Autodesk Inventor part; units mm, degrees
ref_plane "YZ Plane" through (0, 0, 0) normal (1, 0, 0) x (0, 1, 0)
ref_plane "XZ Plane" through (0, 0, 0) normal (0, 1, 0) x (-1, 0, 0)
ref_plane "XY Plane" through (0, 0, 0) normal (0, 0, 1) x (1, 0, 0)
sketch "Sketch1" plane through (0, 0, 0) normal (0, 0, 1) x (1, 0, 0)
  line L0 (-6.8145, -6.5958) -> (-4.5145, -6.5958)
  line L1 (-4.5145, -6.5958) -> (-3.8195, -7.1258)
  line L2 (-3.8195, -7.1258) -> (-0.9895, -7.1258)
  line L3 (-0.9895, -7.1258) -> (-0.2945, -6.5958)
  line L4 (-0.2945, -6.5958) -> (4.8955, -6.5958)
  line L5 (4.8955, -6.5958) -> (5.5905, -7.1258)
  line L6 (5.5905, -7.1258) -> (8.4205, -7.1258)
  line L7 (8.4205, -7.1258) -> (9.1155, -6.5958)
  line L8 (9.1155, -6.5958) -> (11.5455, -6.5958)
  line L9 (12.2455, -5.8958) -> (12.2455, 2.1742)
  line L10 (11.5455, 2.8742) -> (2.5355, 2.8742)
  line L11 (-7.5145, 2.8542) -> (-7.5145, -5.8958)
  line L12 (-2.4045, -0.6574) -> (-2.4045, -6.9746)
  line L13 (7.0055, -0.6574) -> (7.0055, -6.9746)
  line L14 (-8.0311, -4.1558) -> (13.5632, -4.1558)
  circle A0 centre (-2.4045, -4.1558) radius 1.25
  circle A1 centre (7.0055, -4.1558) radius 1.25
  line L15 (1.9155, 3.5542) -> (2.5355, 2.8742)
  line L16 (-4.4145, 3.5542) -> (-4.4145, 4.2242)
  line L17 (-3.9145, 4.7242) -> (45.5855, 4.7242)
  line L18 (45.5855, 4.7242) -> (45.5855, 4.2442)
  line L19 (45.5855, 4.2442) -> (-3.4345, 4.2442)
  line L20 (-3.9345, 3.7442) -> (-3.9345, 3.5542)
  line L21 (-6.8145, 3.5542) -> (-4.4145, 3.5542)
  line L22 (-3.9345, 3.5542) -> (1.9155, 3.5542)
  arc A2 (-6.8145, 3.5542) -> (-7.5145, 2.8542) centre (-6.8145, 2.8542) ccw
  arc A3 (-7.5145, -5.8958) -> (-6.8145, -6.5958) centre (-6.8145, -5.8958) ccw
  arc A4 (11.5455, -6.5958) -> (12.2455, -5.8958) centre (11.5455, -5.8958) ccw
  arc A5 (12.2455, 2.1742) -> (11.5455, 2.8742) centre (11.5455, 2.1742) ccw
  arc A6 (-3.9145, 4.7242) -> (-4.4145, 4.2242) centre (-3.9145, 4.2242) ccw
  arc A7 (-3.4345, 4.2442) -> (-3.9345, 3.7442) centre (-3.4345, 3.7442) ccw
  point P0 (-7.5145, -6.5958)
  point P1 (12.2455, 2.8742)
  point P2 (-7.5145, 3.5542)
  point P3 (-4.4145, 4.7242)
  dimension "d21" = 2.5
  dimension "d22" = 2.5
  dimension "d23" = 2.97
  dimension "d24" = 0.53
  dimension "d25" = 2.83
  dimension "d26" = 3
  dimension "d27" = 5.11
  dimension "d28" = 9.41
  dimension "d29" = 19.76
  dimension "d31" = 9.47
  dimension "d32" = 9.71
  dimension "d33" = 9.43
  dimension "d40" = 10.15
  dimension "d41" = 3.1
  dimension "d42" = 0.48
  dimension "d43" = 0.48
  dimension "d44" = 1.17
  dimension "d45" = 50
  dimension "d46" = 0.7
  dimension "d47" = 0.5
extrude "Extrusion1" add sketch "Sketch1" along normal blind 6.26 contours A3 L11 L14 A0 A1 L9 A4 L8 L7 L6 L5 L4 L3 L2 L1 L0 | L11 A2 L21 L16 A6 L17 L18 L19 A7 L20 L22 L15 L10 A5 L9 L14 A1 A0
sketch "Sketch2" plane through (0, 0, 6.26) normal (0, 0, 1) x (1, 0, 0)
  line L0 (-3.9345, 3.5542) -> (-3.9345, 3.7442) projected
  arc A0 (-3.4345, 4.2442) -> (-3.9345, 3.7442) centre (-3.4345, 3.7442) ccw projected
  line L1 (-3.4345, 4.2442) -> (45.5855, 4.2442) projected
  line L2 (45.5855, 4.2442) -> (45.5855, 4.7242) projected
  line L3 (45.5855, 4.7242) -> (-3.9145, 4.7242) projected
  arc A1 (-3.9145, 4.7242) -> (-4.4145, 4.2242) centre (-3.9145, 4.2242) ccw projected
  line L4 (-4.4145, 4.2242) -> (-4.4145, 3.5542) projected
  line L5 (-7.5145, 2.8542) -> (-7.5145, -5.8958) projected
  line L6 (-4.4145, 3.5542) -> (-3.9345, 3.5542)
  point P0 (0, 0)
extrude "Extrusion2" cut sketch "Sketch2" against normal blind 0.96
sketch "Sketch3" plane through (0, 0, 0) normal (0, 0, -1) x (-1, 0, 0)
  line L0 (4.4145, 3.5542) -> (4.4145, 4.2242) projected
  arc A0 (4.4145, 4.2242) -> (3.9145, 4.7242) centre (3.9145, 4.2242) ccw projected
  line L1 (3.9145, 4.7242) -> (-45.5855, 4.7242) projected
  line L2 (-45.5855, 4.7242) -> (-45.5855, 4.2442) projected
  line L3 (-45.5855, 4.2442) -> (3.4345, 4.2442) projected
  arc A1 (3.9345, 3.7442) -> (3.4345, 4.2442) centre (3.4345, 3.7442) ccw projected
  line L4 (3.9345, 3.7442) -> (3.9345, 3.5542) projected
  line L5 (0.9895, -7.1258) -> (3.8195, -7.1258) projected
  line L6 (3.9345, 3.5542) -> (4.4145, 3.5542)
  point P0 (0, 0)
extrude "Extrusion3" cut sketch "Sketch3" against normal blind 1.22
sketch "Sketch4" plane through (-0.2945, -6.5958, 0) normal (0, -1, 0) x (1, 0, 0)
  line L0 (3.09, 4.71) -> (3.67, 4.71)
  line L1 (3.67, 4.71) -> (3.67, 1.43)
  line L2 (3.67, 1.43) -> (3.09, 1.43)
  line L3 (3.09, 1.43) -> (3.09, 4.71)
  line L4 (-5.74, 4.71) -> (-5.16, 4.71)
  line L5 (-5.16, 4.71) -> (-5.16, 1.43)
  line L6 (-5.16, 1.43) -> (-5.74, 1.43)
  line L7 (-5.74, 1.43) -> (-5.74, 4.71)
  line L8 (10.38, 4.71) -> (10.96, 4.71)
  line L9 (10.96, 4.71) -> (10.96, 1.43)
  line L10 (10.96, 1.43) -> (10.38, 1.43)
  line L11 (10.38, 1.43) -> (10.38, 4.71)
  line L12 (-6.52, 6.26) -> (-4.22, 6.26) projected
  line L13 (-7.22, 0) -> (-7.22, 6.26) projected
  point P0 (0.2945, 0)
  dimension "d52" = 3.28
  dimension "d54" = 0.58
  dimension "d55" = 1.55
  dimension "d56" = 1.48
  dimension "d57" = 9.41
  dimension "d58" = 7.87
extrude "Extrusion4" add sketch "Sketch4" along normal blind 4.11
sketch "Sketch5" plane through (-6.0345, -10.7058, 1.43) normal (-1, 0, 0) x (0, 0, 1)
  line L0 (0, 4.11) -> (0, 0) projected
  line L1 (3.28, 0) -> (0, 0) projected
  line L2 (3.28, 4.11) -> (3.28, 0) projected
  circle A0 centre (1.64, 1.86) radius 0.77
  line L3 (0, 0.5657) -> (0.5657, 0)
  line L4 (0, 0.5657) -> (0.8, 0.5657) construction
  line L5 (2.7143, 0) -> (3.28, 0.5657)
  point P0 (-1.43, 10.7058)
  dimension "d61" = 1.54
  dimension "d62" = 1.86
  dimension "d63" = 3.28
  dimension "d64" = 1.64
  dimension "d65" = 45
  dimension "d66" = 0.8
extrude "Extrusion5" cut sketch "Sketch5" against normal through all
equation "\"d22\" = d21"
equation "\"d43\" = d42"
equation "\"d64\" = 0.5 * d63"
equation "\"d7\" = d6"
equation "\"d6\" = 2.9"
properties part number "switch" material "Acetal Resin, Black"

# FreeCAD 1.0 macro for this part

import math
import FreeCAD as App
import Part
import Sketcher
from FreeCAD import Vector

doc = App.newDocument("Part")
body = doc.addObject("PartDesign::Body", "Body")

sketch1 = body.newObject("Sketcher::SketchObject", "Sketch")
sketch1.AttachmentSupport = (doc.getObject("XY_Plane"), [""])
sketch1.MapMode = "FlatFace"
sketch1.addGeometry([
    Part.ArcOfCircle(Part.Circle(Vector(-6.81, -5.9, 0), Vector(0, 0, 1), 0.7), math.radians(180), math.radians(270)),
    Part.LineSegment(Vector(-6.81, -6.6, 0), Vector(-4.51, -6.6, 0)),
    Part.LineSegment(Vector(-4.51, -6.6, 0), Vector(-3.82, -7.13, 0)),
    Part.LineSegment(Vector(-3.82, -7.13, 0), Vector(-0.99, -7.13, 0)),
    Part.LineSegment(Vector(-0.99, -7.13, 0), Vector(-0.29, -6.6, 0)),
    Part.LineSegment(Vector(-0.29, -6.6, 0), Vector(4.9, -6.6, 0)),
    Part.LineSegment(Vector(4.9, -6.6, 0), Vector(5.59, -7.13, 0)),
    Part.LineSegment(Vector(5.59, -7.13, 0), Vector(8.42, -7.13, 0)),
    Part.LineSegment(Vector(8.42, -7.13, 0), Vector(9.12, -6.6, 0)),
    Part.LineSegment(Vector(9.12, -6.6, 0), Vector(11.55, -6.6, 0)),
    Part.ArcOfCircle(Part.Circle(Vector(11.55, -5.9, 0), Vector(0, 0, 1), 0.7), math.radians(-90), math.radians(0)),
    Part.LineSegment(Vector(12.25, -5.9, 0), Vector(12.25, 2.17, 0)),
    Part.ArcOfCircle(Part.Circle(Vector(11.55, 2.17, 0), Vector(0, 0, 1), 0.7), math.radians(0), math.radians(90)),
    Part.LineSegment(Vector(11.55, 2.87, 0), Vector(2.54, 2.87, 0)),
    Part.LineSegment(Vector(2.54, 2.87, 0), Vector(1.92, 3.55, 0)),
    Part.LineSegment(Vector(1.92, 3.55, 0), Vector(-3.93, 3.55, 0)),
    Part.LineSegment(Vector(-3.93, 3.55, 0), Vector(-3.93, 3.74, 0)),
    Part.ArcOfCircle(Part.Circle(Vector(-3.43, 3.74, 0), Vector(0, 0, 1), 0.5), math.radians(90), math.radians(180)),
    Part.LineSegment(Vector(-3.43, 4.24, 0), Vector(45.59, 4.24, 0)),
    Part.LineSegment(Vector(45.59, 4.24, 0), Vector(45.59, 4.72, 0)),
    Part.LineSegment(Vector(45.59, 4.72, 0), Vector(-3.91, 4.72, 0)),
    Part.ArcOfCircle(Part.Circle(Vector(-3.91, 4.22, 0), Vector(0, 0, 1), 0.5), math.radians(90), math.radians(180)),
    Part.LineSegment(Vector(-4.41, 4.22, 0), Vector(-4.41, 3.55, 0)),
    Part.LineSegment(Vector(-4.41, 3.55, 0), Vector(-6.81, 3.55, 0)),
    Part.ArcOfCircle(Part.Circle(Vector(-6.81, 2.85, 0), Vector(0, 0, 1), 0.7), math.radians(90), math.radians(180)),
    Part.LineSegment(Vector(-7.51, 2.85, 0), Vector(-7.51, -5.9, 0)),
    Part.Circle(Vector(-2.4, -4.16, 0), Vector(0, 0, 1), 1.25),
    Part.Circle(Vector(7.01, -4.16, 0), Vector(0, 0, 1), 1.25),
], False)
sketch1.addConstraint([
    Sketcher.Constraint("Tangent", 0, 2, 1, 1),
    Sketcher.Constraint("Coincident", 1, 2, 2, 1),
    Sketcher.Constraint("Coincident", 2, 2, 3, 1),
    Sketcher.Constraint("Coincident", 3, 2, 4, 1),
    Sketcher.Constraint("Coincident", 4, 2, 5, 1),
    Sketcher.Constraint("Coincident", 5, 2, 6, 1),
    Sketcher.Constraint("Coincident", 6, 2, 7, 1),
    Sketcher.Constraint("Coincident", 7, 2, 8, 1),
    Sketcher.Constraint("Coincident", 8, 2, 9, 1),
    Sketcher.Constraint("Tangent", 9, 2, 10, 1),
    Sketcher.Constraint("Tangent", 10, 2, 11, 1),
    Sketcher.Constraint("Tangent", 11, 2, 12, 1),
    Sketcher.Constraint("Tangent", 12, 2, 13, 1),
    Sketcher.Constraint("Coincident", 13, 2, 14, 1),
    Sketcher.Constraint("Coincident", 14, 2, 15, 1),
    Sketcher.Constraint("Coincident", 15, 2, 16, 1),
    Sketcher.Constraint("Tangent", 16, 2, 17, 2),
    Sketcher.Constraint("Tangent", 17, 1, 18, 1),
    Sketcher.Constraint("Coincident", 18, 2, 19, 1),
    Sketcher.Constraint("Coincident", 19, 2, 20, 1),
    Sketcher.Constraint("Tangent", 20, 2, 21, 1),
    Sketcher.Constraint("Tangent", 21, 2, 22, 1),
    Sketcher.Constraint("Coincident", 22, 2, 23, 1),
    Sketcher.Constraint("Tangent", 23, 2, 24, 1),
    Sketcher.Constraint("Tangent", 24, 2, 25, 1),
    Sketcher.Constraint("Tangent", 25, 2, 0, 1),
    Sketcher.Constraint("Horizontal", 1),
    Sketcher.Constraint("Horizontal", 3),
    Sketcher.Constraint("Horizontal", 5),
    Sketcher.Constraint("Horizontal", 7),
    Sketcher.Constraint("Horizontal", 9),
    Sketcher.Constraint("Vertical", 11),
    Sketcher.Constraint("Horizontal", 13),
    Sketcher.Constraint("Horizontal", 15),
    Sketcher.Constraint("Vertical", 16),
    Sketcher.Constraint("Horizontal", 18),
    Sketcher.Constraint("Vertical", 19),
    Sketcher.Constraint("Horizontal", 20),
    Sketcher.Constraint("Vertical", 22),
    Sketcher.Constraint("Horizontal", 23),
    Sketcher.Constraint("Vertical", 25),
    Sketcher.Constraint("Equal", 0, 10),
    Sketcher.Constraint("Equal", 10, 12),
    Sketcher.Constraint("Equal", 17, 21),
    Sketcher.Constraint("Equal", 12, 24),
    Sketcher.Constraint("Equal", 26, 27),
    Sketcher.Constraint("Parallel", 2, 6),
    Sketcher.Constraint("Parallel", 4, 8),
    Sketcher.Constraint("Horizontal", 0, 3, 10, 3),
    Sketcher.Constraint("Horizontal", 26, 3, 27, 3),
    Sketcher.Constraint("Horizontal", 1, 2, 4, 2),
    Sketcher.Constraint("Horizontal", 3, 2, 6, 2),
    Sketcher.Constraint("Horizontal", 15, 2, 22, 2),
    Sketcher.Constraint("Equal", 3, 7),
    Sketcher.Constraint("Equal", 2, 4),
    Sketcher.Constraint("Diameter", 26, 2.5),
    Sketcher.Constraint("Radius", 0, 0.7),
    Sketcher.Constraint("Radius", 17, 0.5),
    Sketcher.Constraint("DistanceX", 25, 2, 1, 2, 3.0),
    Sketcher.Constraint("DistanceX", 3, 1, 3, 2, 2.83),
    Sketcher.Constraint("DistanceY", 19, 1, 19, 2, 0.48),
    Sketcher.Constraint("DistanceX", 24, 2, 22, 2, 3.1),
    Sketcher.Constraint("DistanceX", 21, 3, 17, 3, 0.48),
    Sketcher.Constraint("DistanceX", 26, 3, 27, 3, 9.41),
    Sketcher.Constraint("DistanceY", 2, 2, 1, 2, 0.53),
    Sketcher.Constraint("DistanceY", 2, 2, 26, 3, 2.97),
    Sketcher.Constraint("DistanceY", 15, 2, 20, 2, 1.17),
    Sketcher.Constraint("DistanceX", 25, 2, 26, 3, 5.11),
    Sketcher.Constraint("DistanceX", 20, 2, 20, 1, 49.5),
    Sketcher.Constraint("DistanceX", 5, 1, 5, 2, 5.19),
    Sketcher.Constraint("DistanceX", 9, 1, 9, 2, 2.43),
    Sketcher.Constraint("DistanceX", 13, 2, 13, 1, 9.01),
    Sketcher.Constraint("DistanceX", 15, 2, 15, 1, 5.85),
    Sketcher.Constraint("DistanceY", 11, 1, 11, 2, 8.07),
    Sketcher.Constraint("DistanceY", 25, 2, 25, 1, 8.75),
    Sketcher.Constraint("DistanceX", 26, 3, 5, 2, 7.3),
    Sketcher.Constraint("DistanceX", 0, 3, -1, 1, 6.8145),
    Sketcher.Constraint("DistanceY", 0, 3, -1, 1, 5.8958),
])
pad1 = body.newObject("PartDesign::Pad", "Pad")
pad1.Profile = sketch1
pad1.Length = 6.26

sketch2 = body.newObject("Sketcher::SketchObject", "Sketch001")
sketch2.AttachmentSupport = (doc.getObject("XY_Plane"), [""])
sketch2.MapMode = "FlatFace"
sketch2.AttachmentOffset = App.Placement(Vector(0, 0, 6.26), App.Rotation())
sketch2.addGeometry([
    Part.LineSegment(Vector(-4.41, 3.55, 0), Vector(-3.93, 3.55, 0)),
    Part.LineSegment(Vector(-3.93, 3.55, 0), Vector(-3.93, 3.74, 0)),
    Part.ArcOfCircle(Part.Circle(Vector(-3.43, 3.74, 0), Vector(0, 0, 1), 0.5), math.radians(90), math.radians(180)),
    Part.LineSegment(Vector(-3.43, 4.24, 0), Vector(45.59, 4.24, 0)),
    Part.LineSegment(Vector(45.59, 4.24, 0), Vector(45.59, 4.72, 0)),
    Part.LineSegment(Vector(45.59, 4.72, 0), Vector(-3.91, 4.72, 0)),
    Part.ArcOfCircle(Part.Circle(Vector(-3.91, 4.22, 0), Vector(0, 0, 1), 0.5), math.radians(90), math.radians(180)),
    Part.LineSegment(Vector(-4.41, 4.22, 0), Vector(-4.41, 3.55, 0)),
], False)
sketch2.addConstraint([
    Sketcher.Constraint("Coincident", 0, 2, 1, 1),
    Sketcher.Constraint("Tangent", 1, 2, 2, 2),
    Sketcher.Constraint("Tangent", 2, 1, 3, 1),
    Sketcher.Constraint("Coincident", 3, 2, 4, 1),
    Sketcher.Constraint("Coincident", 4, 2, 5, 1),
    Sketcher.Constraint("Tangent", 5, 2, 6, 1),
    Sketcher.Constraint("Tangent", 6, 2, 7, 1),
    Sketcher.Constraint("Coincident", 7, 2, 0, 1),
    Sketcher.Constraint("Horizontal", 0),
    Sketcher.Constraint("Vertical", 1),
    Sketcher.Constraint("Horizontal", 3),
    Sketcher.Constraint("Vertical", 4),
    Sketcher.Constraint("Horizontal", 5),
    Sketcher.Constraint("Vertical", 7),
    Sketcher.Constraint("Equal", 2, 6),
    Sketcher.Constraint("Equal", 0, 4),
    Sketcher.Constraint("Radius", 2, 0.5),
    Sketcher.Constraint("DistanceX", 5, 2, 5, 1, 49.5),
    Sketcher.Constraint("DistanceX", 0, 1, 0, 2, 0.48),
    Sketcher.Constraint("DistanceY", 1, 1, 1, 2, 0.19),
    Sketcher.Constraint("DistanceX", 2, 3, -1, 1, 3.4345),
    Sketcher.Constraint("DistanceY", -1, 1, 2, 3, 3.7442),
])
pocket1 = body.newObject("PartDesign::Pocket", "Pocket")
pocket1.Profile = sketch2
pocket1.Length = 0.96

sketch3 = body.newObject("Sketcher::SketchObject", "Sketch002")
sketch3.AttachmentSupport = (doc.getObject("XY_Plane"), [""])
sketch3.MapMode = "FlatFace"
sketch3.addGeometry([
    Part.LineSegment(Vector(-3.93, 3.55, 0), Vector(-4.41, 3.55, 0)),
    Part.LineSegment(Vector(-4.41, 3.55, 0), Vector(-4.41, 4.22, 0)),
    Part.ArcOfCircle(Part.Circle(Vector(-3.91, 4.22, 0), Vector(0, 0, 1), 0.5), math.radians(90), math.radians(180)),
    Part.LineSegment(Vector(-3.91, 4.72, 0), Vector(45.59, 4.72, 0)),
    Part.LineSegment(Vector(45.59, 4.72, 0), Vector(45.59, 4.24, 0)),
    Part.LineSegment(Vector(45.59, 4.24, 0), Vector(-3.43, 4.24, 0)),
    Part.ArcOfCircle(Part.Circle(Vector(-3.43, 3.74, 0), Vector(0, 0, 1), 0.5), math.radians(90), math.radians(180)),
    Part.LineSegment(Vector(-3.93, 3.74, 0), Vector(-3.93, 3.55, 0)),
], False)
sketch3.addConstraint([
    Sketcher.Constraint("Coincident", 0, 2, 1, 1),
    Sketcher.Constraint("Tangent", 1, 2, 2, 2),
    Sketcher.Constraint("Tangent", 2, 1, 3, 1),
    Sketcher.Constraint("Coincident", 3, 2, 4, 1),
    Sketcher.Constraint("Coincident", 4, 2, 5, 1),
    Sketcher.Constraint("Tangent", 5, 2, 6, 1),
    Sketcher.Constraint("Tangent", 6, 2, 7, 1),
    Sketcher.Constraint("Coincident", 7, 2, 0, 1),
    Sketcher.Constraint("Horizontal", 0),
    Sketcher.Constraint("Vertical", 1),
    Sketcher.Constraint("Horizontal", 3),
    Sketcher.Constraint("Vertical", 4),
    Sketcher.Constraint("Horizontal", 5),
    Sketcher.Constraint("Vertical", 7),
    Sketcher.Constraint("Equal", 2, 6),
    Sketcher.Constraint("Equal", 0, 4),
    Sketcher.Constraint("Radius", 2, 0.5),
    Sketcher.Constraint("DistanceX", 3, 1, 3, 2, 49.5),
    Sketcher.Constraint("DistanceX", 0, 2, 0, 1, 0.48),
    Sketcher.Constraint("DistanceY", 1, 1, 1, 2, 0.67),
    Sketcher.Constraint("DistanceX", 2, 3, -1, 1, 3.9145),
    Sketcher.Constraint("DistanceY", -1, 1, 2, 3, 4.2242),
])
pocket2 = body.newObject("PartDesign::Pocket", "Pocket001")
pocket2.Profile = sketch3
pocket2.Length = 1.22
pocket2.Reversed = True

sketch4 = body.newObject("Sketcher::SketchObject", "Sketch003")
sketch4.AttachmentSupport = (doc.getObject("XZ_Plane"), [""])
sketch4.MapMode = "FlatFace"
sketch4.AttachmentOffset = App.Placement(Vector(0, 0, 6.5958), App.Rotation())
sketch4.addGeometry([
    Part.LineSegment(Vector(3.4, 4.7, 0), Vector(2.8, 4.7, 0)),
    Part.LineSegment(Vector(2.8, 4.7, 0), Vector(2.8, 1.4, 0)),
    Part.LineSegment(Vector(2.8, 1.4, 0), Vector(3.4, 1.4, 0)),
    Part.LineSegment(Vector(3.4, 1.4, 0), Vector(3.4, 4.7, 0)),
    Part.LineSegment(Vector(-5.5, 4.7, 0), Vector(-6, 4.7, 0)),
    Part.LineSegment(Vector(-6, 4.7, 0), Vector(-6, 1.4, 0)),
    Part.LineSegment(Vector(-6, 1.4, 0), Vector(-5.5, 1.4, 0)),
    Part.LineSegment(Vector(-5.5, 1.4, 0), Vector(-5.5, 4.7, 0)),
    Part.LineSegment(Vector(10.7, 4.7, 0), Vector(10.1, 4.7, 0)),
    Part.LineSegment(Vector(10.1, 4.7, 0), Vector(10.1, 1.4, 0)),
    Part.LineSegment(Vector(10.1, 1.4, 0), Vector(10.7, 1.4, 0)),
    Part.LineSegment(Vector(10.7, 1.4, 0), Vector(10.7, 4.7, 0)),
], False)
sketch4.addConstraint([
    Sketcher.Constraint("Coincident", 0, 2, 1, 1),
    Sketcher.Constraint("Coincident", 1, 2, 2, 1),
    Sketcher.Constraint("Coincident", 2, 2, 3, 1),
    Sketcher.Constraint("Coincident", 3, 2, 0, 1),
    Sketcher.Constraint("Coincident", 4, 2, 5, 1),
    Sketcher.Constraint("Coincident", 5, 2, 6, 1),
    Sketcher.Constraint("Coincident", 6, 2, 7, 1),
    Sketcher.Constraint("Coincident", 7, 2, 4, 1),
    Sketcher.Constraint("Coincident", 8, 2, 9, 1),
    Sketcher.Constraint("Coincident", 9, 2, 10, 1),
    Sketcher.Constraint("Coincident", 10, 2, 11, 1),
    Sketcher.Constraint("Coincident", 11, 2, 8, 1),
    Sketcher.Constraint("Horizontal", 0),
    Sketcher.Constraint("Vertical", 1),
    Sketcher.Constraint("Horizontal", 2),
    Sketcher.Constraint("Vertical", 3),
    Sketcher.Constraint("Horizontal", 4),
    Sketcher.Constraint("Vertical", 5),
    Sketcher.Constraint("Horizontal", 6),
    Sketcher.Constraint("Vertical", 7),
    Sketcher.Constraint("Horizontal", 8),
    Sketcher.Constraint("Vertical", 9),
    Sketcher.Constraint("Horizontal", 10),
    Sketcher.Constraint("Vertical", 11),
    Sketcher.Constraint("Horizontal", 3, 2, 4, 2),
    Sketcher.Constraint("Horizontal", 2, 2, 5, 2),
    Sketcher.Constraint("Horizontal", 7, 2, 8, 2),
    Sketcher.Constraint("Horizontal", 6, 2, 9, 2),
    Sketcher.Constraint("Equal", 2, 4),
    Sketcher.Constraint("Equal", 6, 8),
    Sketcher.Constraint("DistanceX", 0, 2, 0, 1, 0.58),
    Sketcher.Constraint("DistanceY", 1, 2, 1, 1, 3.28),
    Sketcher.Constraint("DistanceX", 4, 2, 3, 2, 9.41),
    Sketcher.Constraint("DistanceX", 1, 2, 10, 2, 7.87),
    Sketcher.Constraint("DistanceY", -1, 1, 0, 2, 4.71),
    Sketcher.Constraint("DistanceX", -1, 1, 0, 2, 2.7955),
])
pad2 = body.newObject("PartDesign::Pad", "Pad001")
pad2.Profile = sketch4
pad2.Length = 4.11

sketch5 = body.newObject("Sketcher::SketchObject", "Sketch004")
sketch5.AttachmentSupport = (doc.getObject("YZ_Plane"), [""])
sketch5.MapMode = "FlatFace"
sketch5.AttachmentOffset = App.Placement(Vector(0, 0, -6.0345), App.Rotation())
sketch5.addGeometry([
    Part.LineSegment(Vector(-10.7, 2, 0), Vector(-10.1, 1.4, 0)),
    Part.LineSegment(Vector(-10.1, 1.4, 0), Vector(-10.7, 1.4, 0)),
    Part.LineSegment(Vector(-10.7, 1.4, 0), Vector(-10.7, 2, 0)),
    Part.LineSegment(Vector(-10.1, 4.7, 0), Vector(-10.7, 4.1, 0)),
    Part.LineSegment(Vector(-10.7, 4.1, 0), Vector(-10.7, 4.7, 0)),
    Part.LineSegment(Vector(-10.7, 4.7, 0), Vector(-10.1, 4.7, 0)),
    Part.Circle(Vector(-8.8, 3.1, 0), Vector(0, 0, 1), 0.8),
], False)
sketch5.addConstraint([
    Sketcher.Constraint("Coincident", 0, 2, 1, 1),
    Sketcher.Constraint("Coincident", 1, 2, 2, 1),
    Sketcher.Constraint("Coincident", 2, 2, 0, 1),
    Sketcher.Constraint("Coincident", 3, 2, 4, 1),
    Sketcher.Constraint("Coincident", 4, 2, 5, 1),
    Sketcher.Constraint("Coincident", 5, 2, 3, 1),
    Sketcher.Constraint("Horizontal", 1),
    Sketcher.Constraint("Vertical", 2),
    Sketcher.Constraint("Vertical", 4),
    Sketcher.Constraint("Horizontal", 5),
    Sketcher.Constraint("Perpendicular", 0, 3),
    Sketcher.Constraint("Vertical", 2, 2, 3, 2),
    Sketcher.Constraint("Vertical", 0, 2, 5, 2),
    Sketcher.Constraint("Equal", 5, 2),
    Sketcher.Constraint("Diameter", 6, 1.54),
    Sketcher.Constraint("Distance", 0, 0.8),
    Sketcher.Constraint("DistanceY", 0, 2, 6, 3, 1.64),
    Sketcher.Constraint("DistanceX", 1, 2, 6, 3, 1.86),
    Sketcher.Constraint("DistanceY", 6, 3, 4, 2, 1.64),
    Sketcher.Constraint("DistanceY", -1, 1, 6, 3, 3.07),
    Sketcher.Constraint("DistanceX", 0, 2, -1, 1, 10.14),
])
pocket3 = body.newObject("PartDesign::Pocket", "Pocket002")
pocket3.Profile = sketch5
pocket3.Type = "ThroughAll"
pocket3.Reversed = True

doc.recompute()
